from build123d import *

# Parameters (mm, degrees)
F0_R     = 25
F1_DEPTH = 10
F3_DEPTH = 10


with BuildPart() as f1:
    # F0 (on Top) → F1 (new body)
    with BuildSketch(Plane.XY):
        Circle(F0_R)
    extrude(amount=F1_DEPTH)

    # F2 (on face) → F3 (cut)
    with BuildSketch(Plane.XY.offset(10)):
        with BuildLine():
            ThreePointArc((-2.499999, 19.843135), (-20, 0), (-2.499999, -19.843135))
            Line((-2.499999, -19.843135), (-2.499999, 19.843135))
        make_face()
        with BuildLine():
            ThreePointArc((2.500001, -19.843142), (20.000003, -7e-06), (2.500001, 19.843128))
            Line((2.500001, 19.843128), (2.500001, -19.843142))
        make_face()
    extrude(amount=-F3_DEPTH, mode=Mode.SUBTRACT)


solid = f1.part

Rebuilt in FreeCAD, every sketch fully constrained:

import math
import FreeCAD as App
import Part
import Sketcher
from FreeCAD import Vector

doc = App.newDocument("Part")
body = doc.addObject("PartDesign::Body", "Body")

# Sketch on XY plane
sketch1 = body.newObject("Sketcher::SketchObject", "Sketch")
sketch1.AttachmentSupport = (doc.getObject("XY_Plane"), [""])
sketch1.MapMode = "FlatFace"
sketch1.addGeometry(Part.Circle(Vector(0, 0, 0), Vector(0, 0, 1), 25), False)
sketch1.addConstraint([
    Sketcher.Constraint("Coincident", 0, 3, -1, 1),
    Sketcher.Constraint("Diameter", 0, 50.0),
])
pad1 = body.newObject("PartDesign::Pad", "Pad")
pad1.Profile = sketch1
pad1.Length = 10

# Sketch on XY plane
sketch2 = body.newObject("Sketcher::SketchObject", "Sketch001")
sketch2.AttachmentSupport = (doc.getObject("XY_Plane"), [""])
sketch2.MapMode = "FlatFace"
sketch2.AttachmentOffset = App.Placement(Vector(0, 0, 10), App.Rotation())
sketch2.addGeometry([
    Part.ArcOfCircle(Part.Circle(Vector(0, 0, 0), Vector(0, 0, 1), 20), math.radians(97), math.radians(263)),
    Part.LineSegment(Vector(-2, -20, 0), Vector(-2, 20, 0)),
    Part.ArcOfCircle(Part.Circle(Vector(0, 0, 0), Vector(0, 0, 1), 20), math.radians(-83), math.radians(83)),
    Part.LineSegment(Vector(3, 20, 0), Vector(3, -20, 0)),
], False)
sketch2.addConstraint([
    Sketcher.Constraint("Coincident", 0, 1, 1, 2),
    Sketcher.Constraint("Coincident", 1, 1, 0, 2),
    Sketcher.Constraint("Coincident", 2, 1, 3, 2),
    Sketcher.Constraint("Coincident", 3, 1, 2, 2),
    Sketcher.Constraint("Vertical", 1),
    Sketcher.Constraint("Vertical", 3),
    Sketcher.Constraint("Coincident", 0, 3, -1, 1),
    Sketcher.Constraint("Coincident", 2, 3, -1, 1),
    Sketcher.Constraint("Equal", 0, 2),
    Sketcher.Constraint("Equal", 1, 3),
    Sketcher.Constraint("Radius", 0, 20.0),
    Sketcher.Constraint("DistanceX", 1, 1, 2, 1, 5.0),
])
pocket1 = body.newObject("PartDesign::Pocket", "Pocket")
pocket1.Profile = sketch2
pocket1.Length = 10

doc.recompute()
